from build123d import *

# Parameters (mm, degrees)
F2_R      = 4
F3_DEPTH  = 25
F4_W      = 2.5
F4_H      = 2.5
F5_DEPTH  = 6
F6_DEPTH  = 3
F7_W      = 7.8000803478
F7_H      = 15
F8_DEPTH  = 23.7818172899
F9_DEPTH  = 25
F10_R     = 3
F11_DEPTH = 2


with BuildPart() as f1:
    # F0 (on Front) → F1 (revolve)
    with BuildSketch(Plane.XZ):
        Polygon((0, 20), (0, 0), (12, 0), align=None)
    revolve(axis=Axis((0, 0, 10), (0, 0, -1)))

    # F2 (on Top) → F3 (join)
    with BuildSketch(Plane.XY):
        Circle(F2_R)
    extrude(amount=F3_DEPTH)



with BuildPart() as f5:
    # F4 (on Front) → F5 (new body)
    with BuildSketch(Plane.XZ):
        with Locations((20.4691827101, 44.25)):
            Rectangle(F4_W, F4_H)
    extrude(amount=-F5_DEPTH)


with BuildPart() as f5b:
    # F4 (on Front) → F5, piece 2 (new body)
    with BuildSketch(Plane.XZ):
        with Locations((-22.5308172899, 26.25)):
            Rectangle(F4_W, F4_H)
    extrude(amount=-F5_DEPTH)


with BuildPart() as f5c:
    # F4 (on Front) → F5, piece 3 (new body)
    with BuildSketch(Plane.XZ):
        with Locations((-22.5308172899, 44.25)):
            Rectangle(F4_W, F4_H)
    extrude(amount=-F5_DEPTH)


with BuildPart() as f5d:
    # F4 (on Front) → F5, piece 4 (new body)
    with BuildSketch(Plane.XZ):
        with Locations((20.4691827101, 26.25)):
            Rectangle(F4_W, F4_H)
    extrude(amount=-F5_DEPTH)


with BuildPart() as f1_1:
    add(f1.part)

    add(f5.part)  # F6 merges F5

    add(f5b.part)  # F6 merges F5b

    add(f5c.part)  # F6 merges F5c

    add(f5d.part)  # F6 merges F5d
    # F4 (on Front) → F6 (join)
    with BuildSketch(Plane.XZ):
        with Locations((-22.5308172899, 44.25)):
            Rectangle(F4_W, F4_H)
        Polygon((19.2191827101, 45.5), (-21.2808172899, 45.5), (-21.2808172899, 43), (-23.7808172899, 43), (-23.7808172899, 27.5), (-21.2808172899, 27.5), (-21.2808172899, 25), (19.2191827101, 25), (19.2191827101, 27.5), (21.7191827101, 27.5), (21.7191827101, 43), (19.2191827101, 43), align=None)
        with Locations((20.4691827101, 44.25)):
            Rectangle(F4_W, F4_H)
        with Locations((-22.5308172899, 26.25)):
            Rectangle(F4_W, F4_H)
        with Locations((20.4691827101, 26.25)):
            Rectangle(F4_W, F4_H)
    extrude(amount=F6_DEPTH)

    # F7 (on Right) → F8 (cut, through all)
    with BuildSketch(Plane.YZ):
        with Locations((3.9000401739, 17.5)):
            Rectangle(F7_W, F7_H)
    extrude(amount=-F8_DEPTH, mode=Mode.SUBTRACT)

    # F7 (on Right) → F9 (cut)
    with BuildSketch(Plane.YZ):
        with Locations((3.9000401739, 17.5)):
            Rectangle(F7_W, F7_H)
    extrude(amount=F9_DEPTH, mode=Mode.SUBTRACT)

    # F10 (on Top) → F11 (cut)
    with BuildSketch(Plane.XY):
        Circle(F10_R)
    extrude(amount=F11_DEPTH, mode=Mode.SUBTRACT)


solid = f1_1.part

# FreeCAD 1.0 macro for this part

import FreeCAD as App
import Part
import Sketcher
Q = App.Units.Quantity

doc = App.newDocument("Part")
body = doc.addObject("PartDesign::Body", "Body")

# Sketch on XZ plane
sketch1 = body.newObject("Sketcher::SketchObject", "Sketch")
sketch1.AttachmentSupport = (doc.getObject("XZ_Plane"), [""])
sketch1.MapMode = "FlatFace"
sketch1.addGeometry(Part.LineSegment(App.Vector(0, 20, 0), App.Vector(0, 0, 0)), False)
sketch1.addGeometry(Part.LineSegment(App.Vector(0, 0, 0), App.Vector(12, 0, 0)), False)
sketch1.addGeometry(Part.LineSegment(App.Vector(12, 0, 0), App.Vector(0, 20, 0)), False)
sketch1.addConstraint(Sketcher.Constraint("Coincident", 0, 2, 1, 1))
sketch1.addConstraint(Sketcher.Constraint("Coincident", 1, 2, 2, 1))
sketch1.addConstraint(Sketcher.Constraint("Coincident", 2, 2, 0, 1))
sketch1.addConstraint(Sketcher.Constraint("Vertical", 0))
sketch1.addConstraint(Sketcher.Constraint("Horizontal", 1))
sketch1.addConstraint(Sketcher.Constraint("Coincident", 0, 2, -1, 1))
sketch1.addConstraint(Sketcher.Constraint("DistanceX", 1, 1, 1, 2, Q("12 mm")))
sketch1.addConstraint(Sketcher.Constraint("DistanceY", 0, 2, 0, 1, Q("20 mm")))
revolution = body.newObject("PartDesign::Revolution", "Revolution")
revolution.Profile = sketch1
revolution.ReferenceAxis = (sketch1, ["V_Axis"])
revolution.Angle = 360

# Sketch on XY plane
sketch2 = body.newObject("Sketcher::SketchObject", "Sketch001")
sketch2.AttachmentSupport = (doc.getObject("XY_Plane"), [""])
sketch2.MapMode = "FlatFace"
sketch2.addGeometry(Part.Circle(App.Vector(0, 0, 0), App.Vector(0, 0, 1), 4), False)
sketch2.addConstraint(Sketcher.Constraint("Coincident", 0, 3, -1, 1))
sketch2.addConstraint(Sketcher.Constraint("Diameter", 0, Q("8 mm")))
pad1 = body.newObject("PartDesign::Pad", "Pad")
pad1.Profile = sketch2
pad1.Length = 25
body2 = doc.addObject("PartDesign::Body", "Body001")

# Sketch on XZ plane
sketch3 = body2.newObject("Sketcher::SketchObject", "Sketch002")
sketch3.AttachmentSupport = (doc.getObject("XZ_Plane001"), [""])
sketch3.MapMode = "FlatFace"
sketch3.addGeometry(Part.LineSegment(App.Vector(19.2, 45.5, 0), App.Vector(19.2, 43, 0)), False)
sketch3.addGeometry(Part.LineSegment(App.Vector(19.2, 43, 0), App.Vector(21.7, 43, 0)), False)
sketch3.addGeometry(Part.LineSegment(App.Vector(21.7, 43, 0), App.Vector(21.7, 45.5, 0)), False)
sketch3.addGeometry(Part.LineSegment(App.Vector(21.7, 45.5, 0), App.Vector(19.2, 45.5, 0)), False)
sketch3.addConstraint(Sketcher.Constraint("Coincident", 0, 2, 1, 1))
sketch3.addConstraint(Sketcher.Constraint("Coincident", 1, 2, 2, 1))
sketch3.addConstraint(Sketcher.Constraint("Coincident", 2, 2, 3, 1))
sketch3.addConstraint(Sketcher.Constraint("Coincident", 3, 2, 0, 1))
sketch3.addConstraint(Sketcher.Constraint("Vertical", 0))
sketch3.addConstraint(Sketcher.Constraint("Horizontal", 1))
sketch3.addConstraint(Sketcher.Constraint("Vertical", 2))
sketch3.addConstraint(Sketcher.Constraint("Horizontal", 3))
sketch3.addConstraint(Sketcher.Constraint("Equal", 3, 0))
sketch3.addConstraint(Sketcher.Constraint("DistanceX", 1, 1, 1, 2, Q("2.5 mm")))
sketch3.addConstraint(Sketcher.Constraint("DistanceY", -1, 1, 0, 2, Q("43 mm")))
sketch3.addConstraint(Sketcher.Constraint("DistanceX", -1, 1, 0, 2, Q("19.219183 mm")))
pad2 = body2.newObject("PartDesign::Pad", "Pad001")
pad2.Profile = sketch3
pad2.Length = 6
pad2.Reversed = True
body3 = doc.addObject("PartDesign::Body", "Body002")

# Sketch on XZ plane
sketch4 = body3.newObject("Sketcher::SketchObject", "Sketch003")
sketch4.AttachmentSupport = (doc.getObject("XZ_Plane002"), [""])
sketch4.MapMode = "FlatFace"
sketch4.addGeometry(Part.LineSegment(App.Vector(-23.8, 27.5, 0), App.Vector(-23.8, 25, 0)), False)
sketch4.addGeometry(Part.LineSegment(App.Vector(-23.8, 25, 0), App.Vector(-21.3, 25, 0)), False)
sketch4.addGeometry(Part.LineSegment(App.Vector(-21.3, 25, 0), App.Vector(-21.3, 27.5, 0)), False)
sketch4.addGeometry(Part.LineSegment(App.Vector(-21.3, 27.5, 0), App.Vector(-23.8, 27.5, 0)), False)
sketch4.addConstraint(Sketcher.Constraint("Coincident", 0, 2, 1, 1))
sketch4.addConstraint(Sketcher.Constraint("Coincident", 1, 2, 2, 1))
sketch4.addConstraint(Sketcher.Constraint("Coincident", 2, 2, 3, 1))
sketch4.addConstraint(Sketcher.Constraint("Coincident", 3, 2, 0, 1))
sketch4.addConstraint(Sketcher.Constraint("Vertical", 0))
sketch4.addConstraint(Sketcher.Constraint("Horizontal", 1))
sketch4.addConstraint(Sketcher.Constraint("Vertical", 2))
sketch4.addConstraint(Sketcher.Constraint("Horizontal", 3))
sketch4.addConstraint(Sketcher.Constraint("Equal", 3, 0))
sketch4.addConstraint(Sketcher.Constraint("DistanceX", 1, 1, 1, 2, Q("2.5 mm")))
sketch4.addConstraint(Sketcher.Constraint("DistanceY", -1, 1, 0, 2, Q("25 mm")))
sketch4.addConstraint(Sketcher.Constraint("DistanceX", 0, 2, -1, 1, Q("23.780817 mm")))
pad3 = body3.newObject("PartDesign::Pad", "Pad002")
pad3.Profile = sketch4
pad3.Length = 6
pad3.Reversed = True
body4 = doc.addObject("PartDesign::Body", "Body003")

# Sketch on XZ plane
sketch5 = body4.newObject("Sketcher::SketchObject", "Sketch004")
sketch5.AttachmentSupport = (doc.getObject("XZ_Plane003"), [""])
sketch5.MapMode = "FlatFace"
sketch5.addGeometry(Part.LineSegment(App.Vector(-23.8, 45.5, 0), App.Vector(-23.8, 43, 0)), False)
sketch5.addGeometry(Part.LineSegment(App.Vector(-23.8, 43, 0), App.Vector(-21.3, 43, 0)), False)
sketch5.addGeometry(Part.LineSegment(App.Vector(-21.3, 43, 0), App.Vector(-21.3, 45.5, 0)), False)
sketch5.addGeometry(Part.LineSegment(App.Vector(-21.3, 45.5, 0), App.Vector(-23.8, 45.5, 0)), False)
sketch5.addConstraint(Sketcher.Constraint("Coincident", 0, 2, 1, 1))
sketch5.addConstraint(Sketcher.Constraint("Coincident", 1, 2, 2, 1))
sketch5.addConstraint(Sketcher.Constraint("Coincident", 2, 2, 3, 1))
sketch5.addConstraint(Sketcher.Constraint("Coincident", 3, 2, 0, 1))
sketch5.addConstraint(Sketcher.Constraint("Vertical", 0))
sketch5.addConstraint(Sketcher.Constraint("Horizontal", 1))
sketch5.addConstraint(Sketcher.Constraint("Vertical", 2))
sketch5.addConstraint(Sketcher.Constraint("Horizontal", 3))
sketch5.addConstraint(Sketcher.Constraint("Equal", 3, 0))
sketch5.addConstraint(Sketcher.Constraint("DistanceX", 1, 1, 1, 2, Q("2.5 mm")))
sketch5.addConstraint(Sketcher.Constraint("DistanceY", -1, 1, 0, 2, Q("43 mm")))
sketch5.addConstraint(Sketcher.Constraint("DistanceX", 0, 2, -1, 1, Q("23.780817 mm")))
pad4 = body4.newObject("PartDesign::Pad", "Pad003")
pad4.Profile = sketch5
pad4.Length = 6
pad4.Reversed = True
body5 = doc.addObject("PartDesign::Body", "Body004")

# Sketch on XZ plane
sketch6 = body5.newObject("Sketcher::SketchObject", "Sketch005")
sketch6.AttachmentSupport = (doc.getObject("XZ_Plane004"), [""])
sketch6.MapMode = "FlatFace"
sketch6.addGeometry(Part.LineSegment(App.Vector(19.2, 27.5, 0), App.Vector(19.2, 25, 0)), False)
sketch6.addGeometry(Part.LineSegment(App.Vector(19.2, 25, 0), App.Vector(21.7, 25, 0)), False)
sketch6.addGeometry(Part.LineSegment(App.Vector(21.7, 25, 0), App.Vector(21.7, 27.5, 0)), False)
sketch6.addGeometry(Part.LineSegment(App.Vector(21.7, 27.5, 0), App.Vector(19.2, 27.5, 0)), False)
sketch6.addConstraint(Sketcher.Constraint("Coincident", 0, 2, 1, 1))
sketch6.addConstraint(Sketcher.Constraint("Coincident", 1, 2, 2, 1))
sketch6.addConstraint(Sketcher.Constraint("Coincident", 2, 2, 3, 1))
sketch6.addConstraint(Sketcher.Constraint("Coincident", 3, 2, 0, 1))
sketch6.addConstraint(Sketcher.Constraint("Vertical", 0))
sketch6.addConstraint(Sketcher.Constraint("Horizontal", 1))
sketch6.addConstraint(Sketcher.Constraint("Vertical", 2))
sketch6.addConstraint(Sketcher.Constraint("Horizontal", 3))
sketch6.addConstraint(Sketcher.Constraint("Equal", 3, 0))
sketch6.addConstraint(Sketcher.Constraint("DistanceX", 1, 1, 1, 2, Q("2.5 mm")))
sketch6.addConstraint(Sketcher.Constraint("DistanceY", -1, 1, 0, 2, Q("25 mm")))
sketch6.addConstraint(Sketcher.Constraint("DistanceX", -1, 1, 0, 2, Q("19.219183 mm")))
pad5 = body5.newObject("PartDesign::Pad", "Pad004")
pad5.Profile = sketch6
pad5.Length = 6
pad5.Reversed = True
body.AllowCompound = True
doc.recompute()

boolean = body.newObject("PartDesign::Boolean", "Boolean")
boolean.Type = "Fuse"
boolean.addObjects([body2])
doc.recompute()

boolean2 = body.newObject("PartDesign::Boolean", "Boolean001")
boolean2.Type = "Fuse"
boolean2.addObjects([body3])
doc.recompute()

boolean3 = body.newObject("PartDesign::Boolean", "Boolean002")
boolean3.Type = "Fuse"
boolean3.addObjects([body4])
doc.recompute()

boolean4 = body.newObject("PartDesign::Boolean", "Boolean003")
boolean4.Type = "Fuse"
boolean4.addObjects([body5])

# Sketch on XZ plane
sketch7 = body.newObject("Sketcher::SketchObject", "Sketch006")
sketch7.AttachmentSupport = (doc.getObject("XZ_Plane"), [""])
sketch7.MapMode = "FlatFace"
sketch7.addGeometry(Part.LineSegment(App.Vector(-24, 46, 0), App.Vector(-24, 25, 0)), False)
sketch7.addGeometry(Part.LineSegment(App.Vector(-24, 25, 0), App.Vector(22, 25, 0)), False)
sketch7.addGeometry(Part.LineSegment(App.Vector(22, 25, 0), App.Vector(22, 46, 0)), False)
sketch7.addGeometry(Part.LineSegment(App.Vector(22, 46, 0), App.Vector(-24, 46, 0)), False)
sketch7.addConstraint(Sketcher.Constraint("Coincident", 0, 2, 1, 1))
sketch7.addConstraint(Sketcher.Constraint("Coincident", 1, 2, 2, 1))
sketch7.addConstraint(Sketcher.Constraint("Coincident", 2, 2, 3, 1))
sketch7.addConstraint(Sketcher.Constraint("Coincident", 3, 2, 0, 1))
sketch7.addConstraint(Sketcher.Constraint("Vertical", 0))
sketch7.addConstraint(Sketcher.Constraint("Horizontal", 1))
sketch7.addConstraint(Sketcher.Constraint("Vertical", 2))
sketch7.addConstraint(Sketcher.Constraint("Horizontal", 3))
sketch7.addConstraint(Sketcher.Constraint("DistanceX", 1, 1, 1, 2, Q("45.5 mm")))
sketch7.addConstraint(Sketcher.Constraint("DistanceY", 0, 2, 0, 1, Q("20.5 mm")))
sketch7.addConstraint(Sketcher.Constraint("DistanceY", -1, 1, 0, 2, Q("25 mm")))
sketch7.addConstraint(Sketcher.Constraint("DistanceX", 0, 2, -1, 1, Q("23.780817 mm")))
pad6 = body.newObject("PartDesign::Pad", "Pad005")
pad6.Profile = sketch7
pad6.Length = 3

# Sketch on YZ plane
sketch8 = body.newObject("Sketcher::SketchObject", "Sketch007")
sketch8.AttachmentSupport = (doc.getObject("YZ_Plane"), [""])
sketch8.MapMode = "FlatFace"
sketch8.addGeometry(Part.LineSegment(App.Vector(0, 25, 0), App.Vector(0, 10, 0)), False)
sketch8.addGeometry(Part.LineSegment(App.Vector(0, 10, 0), App.Vector(8, 10, 0)), False)
sketch8.addGeometry(Part.LineSegment(App.Vector(8, 10, 0), App.Vector(8, 25, 0)), False)
sketch8.addGeometry(Part.LineSegment(App.Vector(8, 25, 0), App.Vector(0, 25, 0)), False)
sketch8.addConstraint(Sketcher.Constraint("Coincident", 0, 2, 1, 1))
sketch8.addConstraint(Sketcher.Constraint("Coincident", 1, 2, 2, 1))
sketch8.addConstraint(Sketcher.Constraint("Coincident", 2, 2, 3, 1))
sketch8.addConstraint(Sketcher.Constraint("Coincident", 3, 2, 0, 1))
sketch8.addConstraint(Sketcher.Constraint("Vertical", 0))
sketch8.addConstraint(Sketcher.Constraint("Horizontal", 1))
sketch8.addConstraint(Sketcher.Constraint("Vertical", 2))
sketch8.addConstraint(Sketcher.Constraint("Horizontal", 3))
sketch8.addConstraint(Sketcher.Constraint("PointOnObject", 0, 2, -2))
sketch8.addConstraint(Sketcher.Constraint("DistanceY", 0, 2, 0, 1, Q("15 mm")))
sketch8.addConstraint(Sketcher.Constraint("DistanceY", -1, 1, 0, 2, Q("10 mm")))
sketch8.addConstraint(Sketcher.Constraint("DistanceX", 1, 1, 1, 2, Q("7.80008 mm")))
pocket1 = body.newObject("PartDesign::Pocket", "Pocket")
pocket1.Profile = sketch8
pocket1.Type = "ThroughAll"

# Sketch on YZ plane
sketch9 = body.newObject("Sketcher::SketchObject", "Sketch008")
sketch9.AttachmentSupport = (doc.getObject("YZ_Plane"), [""])
sketch9.MapMode = "FlatFace"
sketch9.addGeometry(Part.LineSegment(App.Vector(0, 25, 0), App.Vector(0, 10, 0)), False)
sketch9.addGeometry(Part.LineSegment(App.Vector(0, 10, 0), App.Vector(8, 10, 0)), False)
sketch9.addGeometry(Part.LineSegment(App.Vector(8, 10, 0), App.Vector(8, 25, 0)), False)
sketch9.addGeometry(Part.LineSegment(App.Vector(8, 25, 0), App.Vector(0, 25, 0)), False)
sketch9.addConstraint(Sketcher.Constraint("Coincident", 0, 2, 1, 1))
sketch9.addConstraint(Sketcher.Constraint("Coincident", 1, 2, 2, 1))
sketch9.addConstraint(Sketcher.Constraint("Coincident", 2, 2, 3, 1))
sketch9.addConstraint(Sketcher.Constraint("Coincident", 3, 2, 0, 1))
sketch9.addConstraint(Sketcher.Constraint("Vertical", 0))
sketch9.addConstraint(Sketcher.Constraint("Horizontal", 1))
sketch9.addConstraint(Sketcher.Constraint("Vertical", 2))
sketch9.addConstraint(Sketcher.Constraint("Horizontal", 3))
sketch9.addConstraint(Sketcher.Constraint("PointOnObject", 0, 2, -2))
sketch9.addConstraint(Sketcher.Constraint("DistanceY", 0, 2, 0, 1, Q("15 mm")))
sketch9.addConstraint(Sketcher.Constraint("DistanceY", -1, 1, 0, 2, Q("10 mm")))
sketch9.addConstraint(Sketcher.Constraint("DistanceX", 1, 1, 1, 2, Q("7.80008 mm")))
pocket2 = body.newObject("PartDesign::Pocket", "Pocket001")
pocket2.Profile = sketch9
pocket2.Length = 25
pocket2.Reversed = True

# Sketch on XY plane
sketch10 = body.newObject("Sketcher::SketchObject", "Sketch009")
sketch10.AttachmentSupport = (doc.getObject("XY_Plane"), [""])
sketch10.MapMode = "FlatFace"
sketch10.addGeometry(Part.Circle(App.Vector(0, 0, 0), App.Vector(0, 0, 1), 3), False)
sketch10.addConstraint(Sketcher.Constraint("Coincident", 0, 3, -1, 1))
sketch10.addConstraint(Sketcher.Constraint("Diameter", 0, Q("6 mm")))
pocket3 = body.newObject("PartDesign::Pocket", "Pocket002")
pocket3.Profile = sketch10
pocket3.Length = 2
pocket3.Reversed = True

doc.recompute()
